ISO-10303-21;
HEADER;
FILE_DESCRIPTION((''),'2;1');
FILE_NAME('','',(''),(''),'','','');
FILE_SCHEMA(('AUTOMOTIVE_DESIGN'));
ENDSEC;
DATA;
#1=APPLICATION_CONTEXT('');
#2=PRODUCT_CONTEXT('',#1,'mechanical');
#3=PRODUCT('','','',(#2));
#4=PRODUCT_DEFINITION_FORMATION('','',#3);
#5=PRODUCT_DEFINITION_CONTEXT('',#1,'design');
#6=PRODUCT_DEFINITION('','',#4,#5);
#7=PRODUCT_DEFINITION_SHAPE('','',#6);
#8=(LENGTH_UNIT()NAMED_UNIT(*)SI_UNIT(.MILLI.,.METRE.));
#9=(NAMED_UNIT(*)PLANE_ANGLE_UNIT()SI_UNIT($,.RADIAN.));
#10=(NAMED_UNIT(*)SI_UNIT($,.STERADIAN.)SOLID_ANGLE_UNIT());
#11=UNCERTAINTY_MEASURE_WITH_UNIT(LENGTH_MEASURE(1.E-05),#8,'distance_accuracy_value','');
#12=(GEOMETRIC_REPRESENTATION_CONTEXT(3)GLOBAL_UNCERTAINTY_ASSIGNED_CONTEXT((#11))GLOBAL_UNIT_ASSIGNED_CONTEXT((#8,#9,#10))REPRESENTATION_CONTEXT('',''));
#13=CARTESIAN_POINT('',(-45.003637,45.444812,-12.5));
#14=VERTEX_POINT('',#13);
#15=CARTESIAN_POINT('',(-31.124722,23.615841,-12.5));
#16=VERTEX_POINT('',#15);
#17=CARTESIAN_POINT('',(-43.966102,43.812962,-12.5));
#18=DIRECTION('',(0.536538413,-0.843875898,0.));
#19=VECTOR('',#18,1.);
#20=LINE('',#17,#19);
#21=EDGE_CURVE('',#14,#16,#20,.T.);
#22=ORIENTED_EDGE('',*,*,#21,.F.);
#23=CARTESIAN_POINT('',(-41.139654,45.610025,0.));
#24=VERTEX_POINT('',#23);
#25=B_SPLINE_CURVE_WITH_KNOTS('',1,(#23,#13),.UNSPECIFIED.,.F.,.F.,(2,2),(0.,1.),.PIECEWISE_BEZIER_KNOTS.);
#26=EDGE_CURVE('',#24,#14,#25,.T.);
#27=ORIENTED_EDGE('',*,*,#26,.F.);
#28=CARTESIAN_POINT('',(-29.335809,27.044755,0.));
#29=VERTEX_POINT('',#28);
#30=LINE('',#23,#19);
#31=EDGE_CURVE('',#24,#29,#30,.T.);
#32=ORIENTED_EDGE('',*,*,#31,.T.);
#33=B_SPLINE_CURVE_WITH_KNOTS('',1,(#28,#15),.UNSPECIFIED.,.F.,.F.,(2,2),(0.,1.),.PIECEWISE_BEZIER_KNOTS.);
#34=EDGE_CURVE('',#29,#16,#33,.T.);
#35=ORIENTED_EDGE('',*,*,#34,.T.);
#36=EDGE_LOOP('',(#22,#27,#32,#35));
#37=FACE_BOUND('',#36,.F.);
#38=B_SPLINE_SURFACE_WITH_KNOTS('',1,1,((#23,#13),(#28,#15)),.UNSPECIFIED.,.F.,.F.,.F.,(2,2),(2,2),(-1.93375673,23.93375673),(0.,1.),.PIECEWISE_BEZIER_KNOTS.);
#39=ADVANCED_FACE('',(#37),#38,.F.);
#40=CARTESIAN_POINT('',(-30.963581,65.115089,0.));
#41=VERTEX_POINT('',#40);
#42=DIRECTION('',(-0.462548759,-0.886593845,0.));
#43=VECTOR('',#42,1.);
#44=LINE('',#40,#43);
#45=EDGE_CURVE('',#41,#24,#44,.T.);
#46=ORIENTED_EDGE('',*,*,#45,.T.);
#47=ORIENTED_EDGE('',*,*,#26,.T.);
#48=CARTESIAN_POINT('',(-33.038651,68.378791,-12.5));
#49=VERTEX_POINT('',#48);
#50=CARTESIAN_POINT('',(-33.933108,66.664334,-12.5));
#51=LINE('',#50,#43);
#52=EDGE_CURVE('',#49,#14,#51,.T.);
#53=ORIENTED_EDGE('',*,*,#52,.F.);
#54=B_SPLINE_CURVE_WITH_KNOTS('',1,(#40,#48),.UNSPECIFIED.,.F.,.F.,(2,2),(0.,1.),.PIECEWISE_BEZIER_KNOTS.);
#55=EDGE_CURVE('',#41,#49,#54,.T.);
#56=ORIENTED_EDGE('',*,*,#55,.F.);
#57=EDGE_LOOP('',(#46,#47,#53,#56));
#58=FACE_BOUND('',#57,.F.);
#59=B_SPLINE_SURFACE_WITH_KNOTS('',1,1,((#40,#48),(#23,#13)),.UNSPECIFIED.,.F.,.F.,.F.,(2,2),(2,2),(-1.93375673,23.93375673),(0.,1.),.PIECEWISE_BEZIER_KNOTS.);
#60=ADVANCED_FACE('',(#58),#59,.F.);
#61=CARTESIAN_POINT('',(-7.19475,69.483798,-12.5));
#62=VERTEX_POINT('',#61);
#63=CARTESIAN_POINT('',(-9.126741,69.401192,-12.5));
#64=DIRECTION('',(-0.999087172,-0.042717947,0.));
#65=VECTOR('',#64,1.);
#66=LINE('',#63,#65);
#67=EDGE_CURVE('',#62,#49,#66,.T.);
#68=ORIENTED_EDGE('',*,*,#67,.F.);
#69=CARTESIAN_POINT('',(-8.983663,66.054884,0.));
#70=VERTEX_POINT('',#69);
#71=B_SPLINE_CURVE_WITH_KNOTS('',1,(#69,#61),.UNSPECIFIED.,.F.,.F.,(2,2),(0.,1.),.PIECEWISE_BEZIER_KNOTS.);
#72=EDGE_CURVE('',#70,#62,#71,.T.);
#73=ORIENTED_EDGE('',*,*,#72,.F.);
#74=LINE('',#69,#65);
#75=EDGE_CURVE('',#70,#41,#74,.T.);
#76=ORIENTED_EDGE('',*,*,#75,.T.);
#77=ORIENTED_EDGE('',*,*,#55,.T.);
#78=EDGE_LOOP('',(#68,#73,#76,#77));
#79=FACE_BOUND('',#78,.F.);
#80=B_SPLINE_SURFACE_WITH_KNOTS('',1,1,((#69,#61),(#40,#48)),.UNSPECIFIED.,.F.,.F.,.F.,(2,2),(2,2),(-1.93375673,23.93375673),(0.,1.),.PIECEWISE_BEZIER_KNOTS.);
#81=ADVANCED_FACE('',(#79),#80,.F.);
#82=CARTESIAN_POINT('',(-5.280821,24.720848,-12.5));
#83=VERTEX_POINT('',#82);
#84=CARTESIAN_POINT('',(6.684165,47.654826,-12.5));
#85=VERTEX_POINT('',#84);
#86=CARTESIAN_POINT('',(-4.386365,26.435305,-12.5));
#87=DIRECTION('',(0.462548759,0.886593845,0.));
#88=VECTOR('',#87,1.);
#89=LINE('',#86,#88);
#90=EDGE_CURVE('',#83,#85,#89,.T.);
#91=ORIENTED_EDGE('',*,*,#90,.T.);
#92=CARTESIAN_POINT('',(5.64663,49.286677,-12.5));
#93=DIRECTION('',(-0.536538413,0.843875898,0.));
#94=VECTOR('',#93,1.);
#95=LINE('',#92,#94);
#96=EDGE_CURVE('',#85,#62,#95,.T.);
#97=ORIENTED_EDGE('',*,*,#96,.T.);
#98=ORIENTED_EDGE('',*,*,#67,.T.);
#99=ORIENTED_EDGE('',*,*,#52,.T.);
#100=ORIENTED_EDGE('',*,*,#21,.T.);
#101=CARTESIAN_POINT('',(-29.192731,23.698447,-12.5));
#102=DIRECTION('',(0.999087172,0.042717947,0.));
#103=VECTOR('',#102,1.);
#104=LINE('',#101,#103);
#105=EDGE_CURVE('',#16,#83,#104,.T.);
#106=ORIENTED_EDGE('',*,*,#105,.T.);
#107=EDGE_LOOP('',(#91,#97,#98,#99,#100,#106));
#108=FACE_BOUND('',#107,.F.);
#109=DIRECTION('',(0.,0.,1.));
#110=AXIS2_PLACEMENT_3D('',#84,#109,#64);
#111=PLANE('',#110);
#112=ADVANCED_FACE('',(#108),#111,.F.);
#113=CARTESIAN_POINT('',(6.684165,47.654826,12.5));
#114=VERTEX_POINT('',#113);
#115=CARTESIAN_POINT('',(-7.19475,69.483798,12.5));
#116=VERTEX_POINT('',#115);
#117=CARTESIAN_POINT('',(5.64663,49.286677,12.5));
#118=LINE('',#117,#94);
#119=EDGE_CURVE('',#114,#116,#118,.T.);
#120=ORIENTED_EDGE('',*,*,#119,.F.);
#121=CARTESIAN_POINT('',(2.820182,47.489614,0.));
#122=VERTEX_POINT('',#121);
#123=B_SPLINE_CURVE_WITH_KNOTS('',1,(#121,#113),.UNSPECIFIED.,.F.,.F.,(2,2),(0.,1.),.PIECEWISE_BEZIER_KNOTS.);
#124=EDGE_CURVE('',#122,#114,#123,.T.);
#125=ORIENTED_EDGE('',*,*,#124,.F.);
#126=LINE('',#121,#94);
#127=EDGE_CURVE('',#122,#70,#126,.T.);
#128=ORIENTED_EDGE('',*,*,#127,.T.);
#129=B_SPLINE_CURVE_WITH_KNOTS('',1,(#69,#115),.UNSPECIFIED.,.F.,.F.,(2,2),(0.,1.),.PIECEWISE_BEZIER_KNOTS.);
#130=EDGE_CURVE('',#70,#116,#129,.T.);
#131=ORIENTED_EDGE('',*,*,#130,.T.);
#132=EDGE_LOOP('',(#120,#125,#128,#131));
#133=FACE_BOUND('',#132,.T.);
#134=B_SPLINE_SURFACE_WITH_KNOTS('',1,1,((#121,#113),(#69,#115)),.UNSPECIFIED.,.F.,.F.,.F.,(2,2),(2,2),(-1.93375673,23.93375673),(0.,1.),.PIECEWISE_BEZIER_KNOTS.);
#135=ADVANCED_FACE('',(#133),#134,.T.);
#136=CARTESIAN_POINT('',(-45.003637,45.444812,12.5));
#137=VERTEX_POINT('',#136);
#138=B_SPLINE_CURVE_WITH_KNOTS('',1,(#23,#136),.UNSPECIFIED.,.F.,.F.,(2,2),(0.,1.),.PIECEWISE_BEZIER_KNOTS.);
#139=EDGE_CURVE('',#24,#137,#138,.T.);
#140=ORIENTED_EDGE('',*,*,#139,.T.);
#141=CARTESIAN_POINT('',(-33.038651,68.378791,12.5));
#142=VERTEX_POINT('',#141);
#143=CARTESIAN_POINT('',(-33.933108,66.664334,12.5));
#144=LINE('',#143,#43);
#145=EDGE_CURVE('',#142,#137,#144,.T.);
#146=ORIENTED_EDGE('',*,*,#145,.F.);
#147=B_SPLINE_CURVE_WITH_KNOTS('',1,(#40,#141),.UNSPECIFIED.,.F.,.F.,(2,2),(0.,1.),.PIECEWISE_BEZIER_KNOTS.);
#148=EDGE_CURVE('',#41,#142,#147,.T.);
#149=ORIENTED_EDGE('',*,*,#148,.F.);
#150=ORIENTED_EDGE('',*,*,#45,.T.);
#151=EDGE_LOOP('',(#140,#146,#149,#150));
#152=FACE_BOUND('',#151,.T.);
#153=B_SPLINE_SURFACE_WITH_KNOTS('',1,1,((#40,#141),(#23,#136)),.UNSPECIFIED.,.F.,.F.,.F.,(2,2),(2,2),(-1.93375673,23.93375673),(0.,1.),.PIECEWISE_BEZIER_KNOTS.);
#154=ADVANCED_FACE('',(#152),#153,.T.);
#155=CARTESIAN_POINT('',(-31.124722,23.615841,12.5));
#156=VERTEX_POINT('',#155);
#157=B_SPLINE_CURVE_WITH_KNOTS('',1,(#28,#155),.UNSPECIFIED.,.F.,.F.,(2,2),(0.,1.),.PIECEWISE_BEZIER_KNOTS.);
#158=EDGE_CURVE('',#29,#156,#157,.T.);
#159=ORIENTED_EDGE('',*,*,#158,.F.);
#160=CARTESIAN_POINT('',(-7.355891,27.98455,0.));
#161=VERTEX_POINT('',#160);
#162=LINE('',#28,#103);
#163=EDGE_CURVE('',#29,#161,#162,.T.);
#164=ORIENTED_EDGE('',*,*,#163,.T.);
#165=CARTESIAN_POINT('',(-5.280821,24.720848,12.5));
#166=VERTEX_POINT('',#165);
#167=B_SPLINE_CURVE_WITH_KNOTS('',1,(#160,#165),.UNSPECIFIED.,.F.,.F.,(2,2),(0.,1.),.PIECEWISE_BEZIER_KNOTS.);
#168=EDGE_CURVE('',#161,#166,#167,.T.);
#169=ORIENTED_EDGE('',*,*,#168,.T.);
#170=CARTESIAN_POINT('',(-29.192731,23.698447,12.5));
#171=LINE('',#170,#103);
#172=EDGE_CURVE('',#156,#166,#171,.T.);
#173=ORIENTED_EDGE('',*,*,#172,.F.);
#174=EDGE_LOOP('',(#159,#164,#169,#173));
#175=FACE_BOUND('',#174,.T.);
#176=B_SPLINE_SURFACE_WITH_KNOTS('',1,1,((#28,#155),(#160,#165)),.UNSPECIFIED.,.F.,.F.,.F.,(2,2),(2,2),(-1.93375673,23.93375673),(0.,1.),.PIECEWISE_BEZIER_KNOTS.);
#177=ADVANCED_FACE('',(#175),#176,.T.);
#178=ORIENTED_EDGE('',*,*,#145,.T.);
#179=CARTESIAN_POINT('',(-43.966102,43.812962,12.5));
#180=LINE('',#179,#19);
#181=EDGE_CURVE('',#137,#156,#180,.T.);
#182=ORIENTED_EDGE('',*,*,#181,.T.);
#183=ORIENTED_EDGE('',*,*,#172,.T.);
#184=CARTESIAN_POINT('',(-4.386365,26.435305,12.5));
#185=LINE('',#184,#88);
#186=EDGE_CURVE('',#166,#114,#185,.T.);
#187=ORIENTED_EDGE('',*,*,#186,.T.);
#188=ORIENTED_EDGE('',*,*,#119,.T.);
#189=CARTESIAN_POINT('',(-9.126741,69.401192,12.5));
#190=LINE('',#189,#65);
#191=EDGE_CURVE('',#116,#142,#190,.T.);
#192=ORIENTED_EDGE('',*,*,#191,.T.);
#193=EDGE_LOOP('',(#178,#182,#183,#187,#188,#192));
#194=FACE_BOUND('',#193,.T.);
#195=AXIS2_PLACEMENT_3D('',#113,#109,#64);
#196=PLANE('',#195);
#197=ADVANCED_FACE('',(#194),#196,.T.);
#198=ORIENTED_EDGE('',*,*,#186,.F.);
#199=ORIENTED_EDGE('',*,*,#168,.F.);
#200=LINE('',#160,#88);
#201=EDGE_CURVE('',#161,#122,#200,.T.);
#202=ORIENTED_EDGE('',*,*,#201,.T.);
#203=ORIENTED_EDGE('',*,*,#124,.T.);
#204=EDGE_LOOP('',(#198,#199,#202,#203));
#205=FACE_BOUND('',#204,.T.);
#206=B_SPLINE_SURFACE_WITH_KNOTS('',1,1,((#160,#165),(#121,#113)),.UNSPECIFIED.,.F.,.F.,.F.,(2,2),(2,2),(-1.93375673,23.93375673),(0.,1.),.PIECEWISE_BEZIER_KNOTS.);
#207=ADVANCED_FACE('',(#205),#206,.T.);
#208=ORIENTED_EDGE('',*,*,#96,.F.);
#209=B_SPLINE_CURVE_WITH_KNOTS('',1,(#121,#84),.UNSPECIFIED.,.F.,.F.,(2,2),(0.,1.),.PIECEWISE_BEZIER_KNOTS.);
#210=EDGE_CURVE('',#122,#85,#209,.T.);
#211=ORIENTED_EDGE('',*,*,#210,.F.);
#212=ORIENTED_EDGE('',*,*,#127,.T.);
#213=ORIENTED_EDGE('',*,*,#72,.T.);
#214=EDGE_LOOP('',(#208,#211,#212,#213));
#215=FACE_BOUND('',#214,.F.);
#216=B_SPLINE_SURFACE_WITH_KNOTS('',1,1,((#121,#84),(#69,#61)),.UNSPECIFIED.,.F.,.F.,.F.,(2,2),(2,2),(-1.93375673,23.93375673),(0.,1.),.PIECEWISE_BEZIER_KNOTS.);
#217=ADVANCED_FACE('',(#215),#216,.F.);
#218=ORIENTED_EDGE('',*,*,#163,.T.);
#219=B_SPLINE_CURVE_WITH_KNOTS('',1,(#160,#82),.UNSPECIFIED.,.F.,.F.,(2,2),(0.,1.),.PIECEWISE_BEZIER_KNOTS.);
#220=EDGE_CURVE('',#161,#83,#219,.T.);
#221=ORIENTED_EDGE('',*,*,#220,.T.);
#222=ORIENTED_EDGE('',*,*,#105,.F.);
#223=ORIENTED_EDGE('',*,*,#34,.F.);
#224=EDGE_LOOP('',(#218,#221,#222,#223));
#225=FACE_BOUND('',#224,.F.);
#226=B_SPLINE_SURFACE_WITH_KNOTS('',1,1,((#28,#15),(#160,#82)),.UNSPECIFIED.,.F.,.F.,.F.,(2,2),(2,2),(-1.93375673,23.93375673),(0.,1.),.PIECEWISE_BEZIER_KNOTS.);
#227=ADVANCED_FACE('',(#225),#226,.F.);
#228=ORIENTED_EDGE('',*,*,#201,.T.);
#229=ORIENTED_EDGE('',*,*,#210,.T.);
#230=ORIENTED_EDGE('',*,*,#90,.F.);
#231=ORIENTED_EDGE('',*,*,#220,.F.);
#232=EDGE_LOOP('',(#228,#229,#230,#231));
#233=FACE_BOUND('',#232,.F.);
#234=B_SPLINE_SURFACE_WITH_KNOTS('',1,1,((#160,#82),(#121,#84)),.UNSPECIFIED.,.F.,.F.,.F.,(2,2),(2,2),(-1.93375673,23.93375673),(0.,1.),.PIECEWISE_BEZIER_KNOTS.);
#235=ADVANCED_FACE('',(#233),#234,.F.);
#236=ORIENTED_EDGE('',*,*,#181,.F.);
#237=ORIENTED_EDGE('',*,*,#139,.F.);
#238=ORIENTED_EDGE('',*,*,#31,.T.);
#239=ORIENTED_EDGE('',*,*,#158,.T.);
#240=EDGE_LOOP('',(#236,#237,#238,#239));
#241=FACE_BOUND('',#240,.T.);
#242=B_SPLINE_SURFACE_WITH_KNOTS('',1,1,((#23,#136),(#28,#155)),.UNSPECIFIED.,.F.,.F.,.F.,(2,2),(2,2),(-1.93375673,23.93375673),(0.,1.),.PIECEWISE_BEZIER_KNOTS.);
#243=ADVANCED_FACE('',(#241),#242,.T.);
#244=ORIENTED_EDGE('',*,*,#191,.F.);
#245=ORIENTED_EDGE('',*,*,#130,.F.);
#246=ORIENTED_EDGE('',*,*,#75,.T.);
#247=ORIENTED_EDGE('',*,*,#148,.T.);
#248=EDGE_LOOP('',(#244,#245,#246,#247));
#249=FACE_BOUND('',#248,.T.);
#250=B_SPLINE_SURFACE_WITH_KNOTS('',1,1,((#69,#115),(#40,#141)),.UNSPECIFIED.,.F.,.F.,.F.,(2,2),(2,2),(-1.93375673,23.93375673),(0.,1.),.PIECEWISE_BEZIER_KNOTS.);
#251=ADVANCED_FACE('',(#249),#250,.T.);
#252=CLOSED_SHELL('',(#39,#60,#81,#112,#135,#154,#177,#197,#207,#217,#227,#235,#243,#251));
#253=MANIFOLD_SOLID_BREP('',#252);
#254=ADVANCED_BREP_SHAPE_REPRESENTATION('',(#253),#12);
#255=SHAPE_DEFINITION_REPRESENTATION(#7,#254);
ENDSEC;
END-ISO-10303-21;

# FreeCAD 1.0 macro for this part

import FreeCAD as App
import Part
import Sketcher

V = App.Vector


def add_polygon(sketch, points):
    """Adds a closed chain of lines whose ends are joined by coincident constraints."""
    first, n = sketch.GeometryCount, len(points)
    for a, b in zip(points, points[1:] + points[:1]):
        sketch.addGeometry(Part.LineSegment(App.Vector(*a, 0), App.Vector(*b, 0)), False)
    for i in range(n):
        sketch.addConstraint(Sketcher.Constraint("Coincident", first + i, 2, first + (i + 1) % n, 1))

doc = App.newDocument("Part")
body = doc.addObject("PartDesign::Body", "Body")

sketch1 = body.newObject("Sketcher::SketchObject", "Sketch")
sketch1.AttachmentSupport = (doc.getObject("XY_Plane"), [""])
sketch1.MapMode = "FlatFace"
add_polygon(sketch1, [(3, 47), (-9, 66), (-31, 65), (-41, 46), (-29, 27), (-7, 28)])
sketch1.addConstraint([
    Sketcher.Constraint("Parallel", 0, 3),
    Sketcher.Constraint("Parallel", 1, 4),
    Sketcher.Constraint("Parallel", 2, 5),
    Sketcher.Constraint("Equal", 0, 1),
    Sketcher.Constraint("Equal", 1, 2),
    Sketcher.Constraint("Equal", 2, 3),
    Sketcher.Constraint("Distance", 0, 22.0),
    Sketcher.Constraint("DistanceX", 1, 2, -1, 1, 30.963581),
    Sketcher.Constraint("DistanceY", -1, 1, 1, 2, 65.115089),
    Sketcher.Constraint("DistanceX", 3, 2, -1, 1, 29.335809),
    Sketcher.Constraint("DistanceX", 4, 2, -1, 1, 7.355891),
    Sketcher.Constraint("DistanceY", -1, 1, 4, 2, 27.98455),
])
pad1 = body.newObject("PartDesign::Pad", "Pad")
pad1.Profile = sketch1
pad1.Length = 25
pad1.Midplane = True
pad1.TaperAngle = 15

doc.recompute()
